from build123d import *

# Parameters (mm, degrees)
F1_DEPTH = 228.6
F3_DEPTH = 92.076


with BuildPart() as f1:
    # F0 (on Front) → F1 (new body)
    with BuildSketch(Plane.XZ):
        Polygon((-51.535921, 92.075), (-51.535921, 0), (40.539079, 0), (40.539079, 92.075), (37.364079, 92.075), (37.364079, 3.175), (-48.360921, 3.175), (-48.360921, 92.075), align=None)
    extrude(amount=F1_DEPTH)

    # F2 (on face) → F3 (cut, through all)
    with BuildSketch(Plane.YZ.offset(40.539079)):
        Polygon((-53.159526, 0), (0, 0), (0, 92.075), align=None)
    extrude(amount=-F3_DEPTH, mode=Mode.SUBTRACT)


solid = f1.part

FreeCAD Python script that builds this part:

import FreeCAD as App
import Part
import Sketcher
from FreeCAD import Vector
Q = App.Units.Quantity

doc = App.newDocument("Part")
params = doc.addObject("Spreadsheet::Sheet", "Params")
for row, (alias, value) in enumerate([
    ("sketch1_height", "3.5 in"),
    ("sketch1_width", "3.625 in"),
    ("pad1_length", "9 in"),
    ("sketch2_height", "3.625 in"),
], start=1):
    params.set(f"A{row}", alias)
    params.set(f"B{row}", "=" + value)
    params.setAlias(f"B{row}", alias)

body = doc.addObject("PartDesign::Body", "Body")

# Sketch on XZ plane
sketch1 = body.newObject("Sketcher::SketchObject", "Sketch")
sketch1.AttachmentSupport = (doc.getObject("XZ_Plane"), [""])
sketch1.MapMode = "FlatFace"
sketch1.addGeometry(Part.LineSegment(Vector(-51.5, 92.1, 0), Vector(-51.5, 0, 0)), False)
sketch1.addGeometry(Part.LineSegment(Vector(-51.5, 0, 0), Vector(40.5, 0, 0)), False)
sketch1.addGeometry(Part.LineSegment(Vector(40.5, 0, 0), Vector(40.5, 92.1, 0)), False)
sketch1.addGeometry(Part.LineSegment(Vector(40.5, 92.1, 0), Vector(37.4, 92.1, 0)), False)
sketch1.addGeometry(Part.LineSegment(Vector(37.4, 92.1, 0), Vector(37.4, 3.2, 0)), False)
sketch1.addGeometry(Part.LineSegment(Vector(37.4, 3.2, 0), Vector(-48.4, 3.2, 0)), False)
sketch1.addGeometry(Part.LineSegment(Vector(-48.4, 3.2, 0), Vector(-48.4, 92.1, 0)), False)
sketch1.addGeometry(Part.LineSegment(Vector(-48.4, 92.1, 0), Vector(-51.5, 92.1, 0)), False)
sketch1.addConstraint(Sketcher.Constraint("Coincident", 0, 2, 1, 1))
sketch1.addConstraint(Sketcher.Constraint("Coincident", 1, 2, 2, 1))
sketch1.addConstraint(Sketcher.Constraint("Coincident", 2, 2, 3, 1))
sketch1.addConstraint(Sketcher.Constraint("Coincident", 3, 2, 4, 1))
sketch1.addConstraint(Sketcher.Constraint("Coincident", 4, 2, 5, 1))
sketch1.addConstraint(Sketcher.Constraint("Coincident", 5, 2, 6, 1))
sketch1.addConstraint(Sketcher.Constraint("Coincident", 6, 2, 7, 1))
sketch1.addConstraint(Sketcher.Constraint("Coincident", 7, 2, 0, 1))
sketch1.addConstraint(Sketcher.Constraint("Vertical", 0))
sketch1.addConstraint(Sketcher.Constraint("Horizontal", 1))
sketch1.addConstraint(Sketcher.Constraint("Vertical", 2))
sketch1.addConstraint(Sketcher.Constraint("Horizontal", 3))
sketch1.addConstraint(Sketcher.Constraint("Vertical", 4))
sketch1.addConstraint(Sketcher.Constraint("Horizontal", 5))
sketch1.addConstraint(Sketcher.Constraint("Vertical", 6))
sketch1.addConstraint(Sketcher.Constraint("Horizontal", 7))
sketch1.addConstraint(Sketcher.Constraint("PointOnObject", 0, 2, -1))
sketch1.addConstraint(Sketcher.Constraint("Horizontal", 3, 2, 6, 2))
sketch1.addConstraint(Sketcher.Constraint("Equal", 3, 7))
sketch1.addConstraint(Sketcher.Constraint("Equal", 1, 0))
sketch1.addConstraint(Sketcher.Constraint("DistanceY", 4, 2, 4, 1, Q("3.5 in")))
sketch1.addConstraint(Sketcher.Constraint("DistanceX", 0, 2, 3, 2, Q("3.5 in")))
sketch1.addConstraint(Sketcher.Constraint("DistanceX", 1, 1, 1, 2, Q("3.625 in")))
sketch1.addConstraint(Sketcher.Constraint("DistanceX", 0, 2, -1, 1, 51.535921))
sketch1.setExpression("Constraints[20]", "Params.sketch1_height")
sketch1.setExpression("Constraints[22]", "Params.sketch1_width")
pad1 = body.newObject("PartDesign::Pad", "Pad")
pad1.Profile = sketch1
pad1.setExpression("Length", "Params.pad1_length")

# Sketch on YZ plane
sketch2 = body.newObject("Sketcher::SketchObject", "Sketch001")
sketch2.AttachmentSupport = (doc.getObject("YZ_Plane"), [""])
sketch2.MapMode = "FlatFace"
sketch2.AttachmentOffset = App.Placement(Vector(0, 0, 40.539079), App.Rotation())
sketch2.addGeometry(Part.LineSegment(Vector(-53, 0, 0), Vector(0, 0, 0)), False)
sketch2.addGeometry(Part.LineSegment(Vector(0, 0, 0), Vector(0, 92, 0)), False)
sketch2.addGeometry(Part.LineSegment(Vector(0, 92, 0), Vector(-53, 0, 0)), False)
sketch2.addConstraint(Sketcher.Constraint("Coincident", 0, 2, 1, 1))
sketch2.addConstraint(Sketcher.Constraint("Coincident", 1, 2, 2, 1))
sketch2.addConstraint(Sketcher.Constraint("Coincident", 2, 2, 0, 1))
sketch2.addConstraint(Sketcher.Constraint("Horizontal", 0))
sketch2.addConstraint(Sketcher.Constraint("Vertical", 1))
sketch2.addConstraint(Sketcher.Constraint("Coincident", 0, 2, -1, 1))
sketch2.addConstraint(Sketcher.Constraint("Angle", 2, Q("-120 deg")))
sketch2.addConstraint(Sketcher.Constraint("DistanceY", 1, 1, 1, 2, Q("3.625 in")))
sketch2.setExpression("Constraints[7]", "Params.sketch2_height")
pocket1 = body.newObject("PartDesign::Pocket", "Pocket")
pocket1.Profile = sketch2
pocket1.Type = "ThroughAll"

doc.recompute()
